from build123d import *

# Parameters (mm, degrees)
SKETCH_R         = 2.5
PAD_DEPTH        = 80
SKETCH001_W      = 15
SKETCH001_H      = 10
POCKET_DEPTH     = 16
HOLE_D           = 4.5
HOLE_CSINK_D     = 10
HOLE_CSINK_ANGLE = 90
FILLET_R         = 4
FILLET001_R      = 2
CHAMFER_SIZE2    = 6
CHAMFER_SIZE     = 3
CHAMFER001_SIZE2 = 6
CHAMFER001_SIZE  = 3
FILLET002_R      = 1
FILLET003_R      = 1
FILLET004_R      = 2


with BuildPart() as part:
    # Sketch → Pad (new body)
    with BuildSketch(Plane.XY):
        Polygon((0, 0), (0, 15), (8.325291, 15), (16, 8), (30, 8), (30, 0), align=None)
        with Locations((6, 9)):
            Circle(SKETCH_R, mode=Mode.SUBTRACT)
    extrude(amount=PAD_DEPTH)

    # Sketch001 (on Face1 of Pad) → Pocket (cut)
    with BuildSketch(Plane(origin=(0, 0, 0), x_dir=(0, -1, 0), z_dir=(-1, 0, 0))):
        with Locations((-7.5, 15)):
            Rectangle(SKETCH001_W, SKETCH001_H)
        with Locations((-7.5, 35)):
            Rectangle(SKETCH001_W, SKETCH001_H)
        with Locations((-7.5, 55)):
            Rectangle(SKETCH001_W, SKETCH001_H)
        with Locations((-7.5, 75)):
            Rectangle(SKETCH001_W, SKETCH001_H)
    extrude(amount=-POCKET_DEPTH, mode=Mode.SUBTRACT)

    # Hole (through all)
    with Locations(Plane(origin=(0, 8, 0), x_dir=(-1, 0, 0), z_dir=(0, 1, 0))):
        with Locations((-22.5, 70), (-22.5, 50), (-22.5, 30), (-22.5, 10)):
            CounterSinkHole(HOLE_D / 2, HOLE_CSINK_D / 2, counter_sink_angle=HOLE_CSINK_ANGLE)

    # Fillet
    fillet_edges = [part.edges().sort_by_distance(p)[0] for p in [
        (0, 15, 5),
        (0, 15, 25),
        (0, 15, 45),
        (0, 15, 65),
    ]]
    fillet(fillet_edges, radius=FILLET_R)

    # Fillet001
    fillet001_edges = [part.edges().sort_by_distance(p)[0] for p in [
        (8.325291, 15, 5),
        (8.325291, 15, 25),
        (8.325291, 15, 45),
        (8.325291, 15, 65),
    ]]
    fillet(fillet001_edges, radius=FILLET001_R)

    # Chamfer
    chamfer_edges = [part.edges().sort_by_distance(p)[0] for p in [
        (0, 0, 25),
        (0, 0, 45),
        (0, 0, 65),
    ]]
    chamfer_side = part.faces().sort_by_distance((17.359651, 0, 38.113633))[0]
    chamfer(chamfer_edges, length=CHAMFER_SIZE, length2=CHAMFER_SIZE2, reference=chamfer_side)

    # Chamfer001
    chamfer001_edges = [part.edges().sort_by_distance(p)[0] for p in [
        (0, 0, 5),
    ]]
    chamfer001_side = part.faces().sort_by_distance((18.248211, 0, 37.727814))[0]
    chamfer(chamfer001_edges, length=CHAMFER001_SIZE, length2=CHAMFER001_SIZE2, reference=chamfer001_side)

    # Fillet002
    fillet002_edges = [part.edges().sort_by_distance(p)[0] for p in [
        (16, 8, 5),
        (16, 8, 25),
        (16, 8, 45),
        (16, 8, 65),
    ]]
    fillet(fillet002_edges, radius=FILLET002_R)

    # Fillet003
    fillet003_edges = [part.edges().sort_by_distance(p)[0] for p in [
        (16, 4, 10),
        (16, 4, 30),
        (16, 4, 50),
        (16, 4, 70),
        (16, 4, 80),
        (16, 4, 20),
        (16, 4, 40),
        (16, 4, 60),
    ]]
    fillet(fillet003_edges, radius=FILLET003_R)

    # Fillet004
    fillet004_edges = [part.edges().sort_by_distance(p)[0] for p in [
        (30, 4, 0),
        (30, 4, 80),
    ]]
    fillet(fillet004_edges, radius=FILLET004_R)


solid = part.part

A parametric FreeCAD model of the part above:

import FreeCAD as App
import Part
import Sketcher
from FreeCAD import Vector
Q = App.Units.Quantity


def edges_at(feature, points):
    """Names of the edges that pass closest to the given points."""
    edges = feature.Shape.Edges
    near = lambda p: min(range(len(edges)), key=lambda i: edges[i].distToShape(Part.Vertex(*p))[0])
    return sorted({f"Edge{near(p) + 1}" for p in points})

doc = App.newDocument("Part")
body = doc.addObject("PartDesign::Body", "Body")

# Sketch on XY plane
sketch1 = doc.addObject("Sketcher::SketchObject", "Sketch")
body.addObject(sketch1)
sketch1.AttachmentSupport = (doc.XY_Plane, [""])
sketch1.MapMode = "FlatFace"
sketch1.addGeometry(Part.LineSegment(Vector(0, 15, 0), Vector(0, 0, 0)), False)
sketch1.addGeometry(Part.LineSegment(Vector(0, 0, 0), Vector(30, 0, 0)), False)
sketch1.addGeometry(Part.LineSegment(Vector(30, 0, 0), Vector(30, 8, 0)), False)
sketch1.addGeometry(Part.LineSegment(Vector(30, 8, 0), Vector(16, 8, 0)), False)
sketch1.addGeometry(Part.LineSegment(Vector(16, 8, 0), Vector(8.3, 15, 0)), False)
sketch1.addGeometry(Part.LineSegment(Vector(8.3, 15, 0), Vector(0, 15, 0)), False)
sketch1.addGeometry(Part.Circle(Vector(6, 9, 0), Vector(0, 0, 1), 2.5), False)
sketch1.addConstraint(Sketcher.Constraint("Coincident", 0, 2, 1, 1))
sketch1.addConstraint(Sketcher.Constraint("Coincident", 1, 2, 2, 1))
sketch1.addConstraint(Sketcher.Constraint("Coincident", 2, 2, 3, 1))
sketch1.addConstraint(Sketcher.Constraint("Coincident", 3, 2, 4, 1))
sketch1.addConstraint(Sketcher.Constraint("Coincident", 4, 2, 5, 1))
sketch1.addConstraint(Sketcher.Constraint("Coincident", 5, 2, 0, 1))
sketch1.addConstraint(Sketcher.Constraint("Vertical", 0))
sketch1.addConstraint(Sketcher.Constraint("Horizontal", 1))
sketch1.addConstraint(Sketcher.Constraint("Vertical", 2))
sketch1.addConstraint(Sketcher.Constraint("Horizontal", 3))
sketch1.addConstraint(Sketcher.Constraint("Horizontal", 5))
sketch1.addConstraint(Sketcher.Constraint("Coincident", 0, 2, -1, 1))
sketch1.addConstraint(Sketcher.Constraint("Diameter", 6, Q("5 mm")))
sketch1.addConstraint(Sketcher.Constraint("DistanceX", 1, 1, 1, 2, Q("30 mm")))
sketch1.addConstraint(Sketcher.Constraint("DistanceX", 3, 2, 3, 1, Q("14 mm")))
sketch1.addConstraint(Sketcher.Constraint("DistanceY", 0, 2, 0, 1, Q("15 mm")))
sketch1.addConstraint(Sketcher.Constraint("DistanceY", 2, 1, 2, 2, Q("8 mm")))
sketch1.addConstraint(Sketcher.Constraint("DistanceX", -1, 1, 6, 3, Q("6 mm")))
sketch1.addConstraint(Sketcher.Constraint("DistanceY", -1, 1, 6, 3, Q("9 mm")))
sketch1.addConstraint(Sketcher.Constraint("DistanceX", 5, 2, 5, 1, Q("8.325291 mm")))
pad1 = doc.addObject("PartDesign::Pad", "Pad")
body.addObject(pad1)
pad1.Profile = sketch1
pad1.Length = 80

# Sketch on YZ plane
sketch2 = doc.addObject("Sketcher::SketchObject", "Sketch001")
body.addObject(sketch2)
sketch2.AttachmentSupport = (doc.YZ_Plane, [""])
sketch2.MapMode = "FlatFace"
sketch2.addGeometry(Part.LineSegment(Vector(15, 20, 0), Vector(15, 10, 0)), False)
sketch2.addGeometry(Part.LineSegment(Vector(15, 10, 0), Vector(0, 10, 0)), False)
sketch2.addGeometry(Part.LineSegment(Vector(0, 10, 0), Vector(0, 20, 0)), False)
sketch2.addGeometry(Part.LineSegment(Vector(0, 20, 0), Vector(15, 20, 0)), False)
sketch2.addGeometry(Part.LineSegment(Vector(15, 40, 0), Vector(15, 30, 0)), False)
sketch2.addGeometry(Part.LineSegment(Vector(15, 30, 0), Vector(0, 30, 0)), False)
sketch2.addGeometry(Part.LineSegment(Vector(0, 30, 0), Vector(0, 40, 0)), False)
sketch2.addGeometry(Part.LineSegment(Vector(0, 40, 0), Vector(15, 40, 0)), False)
sketch2.addGeometry(Part.LineSegment(Vector(15, 60, 0), Vector(15, 50, 0)), False)
sketch2.addGeometry(Part.LineSegment(Vector(15, 50, 0), Vector(0, 50, 0)), False)
sketch2.addGeometry(Part.LineSegment(Vector(0, 50, 0), Vector(0, 60, 0)), False)
sketch2.addGeometry(Part.LineSegment(Vector(0, 60, 0), Vector(15, 60, 0)), False)
sketch2.addGeometry(Part.LineSegment(Vector(15, 80, 0), Vector(15, 70, 0)), False)
sketch2.addGeometry(Part.LineSegment(Vector(15, 70, 0), Vector(0, 70, 0)), False)
sketch2.addGeometry(Part.LineSegment(Vector(0, 70, 0), Vector(0, 80, 0)), False)
sketch2.addGeometry(Part.LineSegment(Vector(0, 80, 0), Vector(15, 80, 0)), False)
sketch2.addConstraint(Sketcher.Constraint("Coincident", 0, 2, 1, 1))
sketch2.addConstraint(Sketcher.Constraint("Coincident", 1, 2, 2, 1))
sketch2.addConstraint(Sketcher.Constraint("Coincident", 2, 2, 3, 1))
sketch2.addConstraint(Sketcher.Constraint("Coincident", 3, 2, 0, 1))
sketch2.addConstraint(Sketcher.Constraint("Coincident", 4, 2, 5, 1))
sketch2.addConstraint(Sketcher.Constraint("Coincident", 5, 2, 6, 1))
sketch2.addConstraint(Sketcher.Constraint("Coincident", 6, 2, 7, 1))
sketch2.addConstraint(Sketcher.Constraint("Coincident", 7, 2, 4, 1))
sketch2.addConstraint(Sketcher.Constraint("Coincident", 8, 2, 9, 1))
sketch2.addConstraint(Sketcher.Constraint("Coincident", 9, 2, 10, 1))
sketch2.addConstraint(Sketcher.Constraint("Coincident", 10, 2, 11, 1))
sketch2.addConstraint(Sketcher.Constraint("Coincident", 11, 2, 8, 1))
sketch2.addConstraint(Sketcher.Constraint("Coincident", 12, 2, 13, 1))
sketch2.addConstraint(Sketcher.Constraint("Coincident", 13, 2, 14, 1))
sketch2.addConstraint(Sketcher.Constraint("Coincident", 14, 2, 15, 1))
sketch2.addConstraint(Sketcher.Constraint("Coincident", 15, 2, 12, 1))
sketch2.addConstraint(Sketcher.Constraint("Vertical", 0))
sketch2.addConstraint(Sketcher.Constraint("Horizontal", 1))
sketch2.addConstraint(Sketcher.Constraint("Vertical", 2))
sketch2.addConstraint(Sketcher.Constraint("Horizontal", 3))
sketch2.addConstraint(Sketcher.Constraint("Vertical", 4))
sketch2.addConstraint(Sketcher.Constraint("Horizontal", 5))
sketch2.addConstraint(Sketcher.Constraint("Vertical", 6))
sketch2.addConstraint(Sketcher.Constraint("Horizontal", 7))
sketch2.addConstraint(Sketcher.Constraint("Vertical", 8))
sketch2.addConstraint(Sketcher.Constraint("Horizontal", 9))
sketch2.addConstraint(Sketcher.Constraint("Vertical", 10))
sketch2.addConstraint(Sketcher.Constraint("Horizontal", 11))
sketch2.addConstraint(Sketcher.Constraint("Vertical", 12))
sketch2.addConstraint(Sketcher.Constraint("Horizontal", 13))
sketch2.addConstraint(Sketcher.Constraint("Vertical", 14))
sketch2.addConstraint(Sketcher.Constraint("Horizontal", 15))
sketch2.addConstraint(Sketcher.Constraint("PointOnObject", 1, 2, -2))
sketch2.addConstraint(Sketcher.Constraint("PointOnObject", 5, 2, -2))
sketch2.addConstraint(Sketcher.Constraint("PointOnObject", 9, 2, -2))
sketch2.addConstraint(Sketcher.Constraint("PointOnObject", 13, 2, -2))
sketch2.addConstraint(Sketcher.Constraint("Vertical", 3, 2, 4, 2))
sketch2.addConstraint(Sketcher.Constraint("Vertical", 7, 2, 8, 2))
sketch2.addConstraint(Sketcher.Constraint("Vertical", 11, 2, 12, 2))
sketch2.addConstraint(Sketcher.Constraint("Equal", 2, 4))
sketch2.addConstraint(Sketcher.Constraint("Equal", 6, 8))
sketch2.addConstraint(Sketcher.Constraint("Equal", 10, 12))
sketch2.addConstraint(Sketcher.Constraint("DistanceX", 1, 2, 1, 1, Q("15 mm")))
sketch2.addConstraint(Sketcher.Constraint("DistanceY", 0, 2, 0, 1, Q("10 mm")))
sketch2.addConstraint(Sketcher.Constraint("DistanceY", -1, 1, 0, 2, Q("10 mm")))
sketch2.addConstraint(Sketcher.Constraint("DistanceY", -1, 1, 4, 2, Q("30 mm")))
sketch2.addConstraint(Sketcher.Constraint("DistanceY", -1, 1, 8, 2, Q("50 mm")))
sketch2.addConstraint(Sketcher.Constraint("DistanceY", -1, 1, 12, 2, Q("70 mm")))
pocket1 = doc.addObject("PartDesign::Pocket", "Pocket")
body.addObject(pocket1)
pocket1.Profile = sketch2
pocket1.Length = 16
pocket1.Reversed = True

# Sketch on XZ plane
sketch3 = doc.addObject("Sketcher::SketchObject", "Sketch002")
body.addObject(sketch3)
sketch3.AttachmentSupport = (doc.XZ_Plane, [""])
sketch3.MapMode = "FlatFace"
sketch3.AttachmentOffset = App.Placement(Vector(0, 0, -8), App.Rotation())
sketch3.addGeometry(Part.Circle(Vector(22.5, 70, 0), Vector(0, 0, 1), 2.2), False)
sketch3.addGeometry(Part.Circle(Vector(22.5, 50, 0), Vector(0, 0, 1), 2.2), False)
sketch3.addGeometry(Part.Circle(Vector(22.5, 30, 0), Vector(0, 0, 1), 2.2), False)
sketch3.addGeometry(Part.Circle(Vector(22.5, 10, 0), Vector(0, 0, 1), 2.2), False)
sketch3.addConstraint(Sketcher.Constraint("Equal", 0, 1))
sketch3.addConstraint(Sketcher.Constraint("Equal", 1, 2))
sketch3.addConstraint(Sketcher.Constraint("Equal", 2, 3))
sketch3.addConstraint(Sketcher.Constraint("Vertical", 0, 3, 1, 3))
sketch3.addConstraint(Sketcher.Constraint("Vertical", 1, 3, 2, 3))
sketch3.addConstraint(Sketcher.Constraint("Vertical", 2, 3, 3, 3))
sketch3.addConstraint(Sketcher.Constraint("Diameter", 0, Q("4.5 mm")))
sketch3.addConstraint(Sketcher.Constraint("DistanceY", -1, 1, 0, 3, Q("70 mm")))
sketch3.addConstraint(Sketcher.Constraint("DistanceY", -1, 1, 1, 3, Q("50 mm")))
sketch3.addConstraint(Sketcher.Constraint("DistanceY", -1, 1, 2, 3, Q("30 mm")))
sketch3.addConstraint(Sketcher.Constraint("DistanceY", -1, 1, 3, 3, Q("10 mm")))
sketch3.addConstraint(Sketcher.Constraint("DistanceX", -1, 1, 0, 3, Q("22.5 mm")))
doc.recompute()
hole = doc.addObject("PartDesign::Hole", "Hole")
body.addObject(hole)
hole.Profile = sketch3
hole.ThreadType = "None"
hole.Diameter = 4.5
hole.DepthType = "ThroughAll"
hole.HoleCutType = "Countersink"
hole.HoleCutDiameter = 10
hole.HoleCutCountersinkAngle = 90
hole.Reversed = True
doc.recompute()

fillet = doc.addObject("PartDesign::Fillet", "Fillet")
body.addObject(fillet)
fillet.Base = (hole, edges_at(hole, [
    (0, 15, 5),
    (0, 15, 25),
    (0, 15, 45),
    (0, 15, 65),
]))
fillet.Radius = 4
doc.recompute()

fillet2 = doc.addObject("PartDesign::Fillet", "Fillet001")
body.addObject(fillet2)
fillet2.Base = (fillet, edges_at(fillet, [
    (8.325, 15, 5),
    (8.325, 15, 25),
    (8.325, 15, 45),
    (8.325, 15, 65),
]))
fillet2.Radius = 2
doc.recompute()

chamfer = doc.addObject("PartDesign::Chamfer", "Chamfer")
body.addObject(chamfer)
chamfer.Base = (fillet2, edges_at(fillet2, [(0, 0, 25), (0, 0, 45), (0, 0, 65)]))
chamfer.ChamferType = "Two distances"
chamfer.Size = 3
chamfer.Size2 = 6
doc.recompute()

chamfer2 = doc.addObject("PartDesign::Chamfer", "Chamfer001")
body.addObject(chamfer2)
chamfer2.Base = (chamfer, edges_at(chamfer, [(0, 0, 5)]))
chamfer2.ChamferType = "Two distances"
chamfer2.Size = 3
chamfer2.Size2 = 6
doc.recompute()

fillet3 = doc.addObject("PartDesign::Fillet", "Fillet002")
body.addObject(fillet3)
fillet3.Base = (chamfer2, edges_at(chamfer2, [
    (16, 8, 5),
    (16, 8, 25),
    (16, 8, 45),
    (16, 8, 65),
]))
fillet3.Radius = 1
doc.recompute()

fillet4 = doc.addObject("PartDesign::Fillet", "Fillet003")
body.addObject(fillet4)
fillet4.Base = (fillet3, edges_at(fillet3, [
    (16, 4, 10),
    (16, 4, 30),
    (16, 4, 50),
    (16, 4, 70),
    (16, 4, 80),
    (16, 4, 20),
    (16, 4, 40),
    (16, 4, 60),
]))
fillet4.Radius = 1
doc.recompute()

fillet5 = doc.addObject("PartDesign::Fillet", "Fillet004")
body.addObject(fillet5)
fillet5.Base = (fillet4, edges_at(fillet4, [(30, 4, 0), (30, 4, 80)]))
fillet5.Radius = 2

doc.recompute()
